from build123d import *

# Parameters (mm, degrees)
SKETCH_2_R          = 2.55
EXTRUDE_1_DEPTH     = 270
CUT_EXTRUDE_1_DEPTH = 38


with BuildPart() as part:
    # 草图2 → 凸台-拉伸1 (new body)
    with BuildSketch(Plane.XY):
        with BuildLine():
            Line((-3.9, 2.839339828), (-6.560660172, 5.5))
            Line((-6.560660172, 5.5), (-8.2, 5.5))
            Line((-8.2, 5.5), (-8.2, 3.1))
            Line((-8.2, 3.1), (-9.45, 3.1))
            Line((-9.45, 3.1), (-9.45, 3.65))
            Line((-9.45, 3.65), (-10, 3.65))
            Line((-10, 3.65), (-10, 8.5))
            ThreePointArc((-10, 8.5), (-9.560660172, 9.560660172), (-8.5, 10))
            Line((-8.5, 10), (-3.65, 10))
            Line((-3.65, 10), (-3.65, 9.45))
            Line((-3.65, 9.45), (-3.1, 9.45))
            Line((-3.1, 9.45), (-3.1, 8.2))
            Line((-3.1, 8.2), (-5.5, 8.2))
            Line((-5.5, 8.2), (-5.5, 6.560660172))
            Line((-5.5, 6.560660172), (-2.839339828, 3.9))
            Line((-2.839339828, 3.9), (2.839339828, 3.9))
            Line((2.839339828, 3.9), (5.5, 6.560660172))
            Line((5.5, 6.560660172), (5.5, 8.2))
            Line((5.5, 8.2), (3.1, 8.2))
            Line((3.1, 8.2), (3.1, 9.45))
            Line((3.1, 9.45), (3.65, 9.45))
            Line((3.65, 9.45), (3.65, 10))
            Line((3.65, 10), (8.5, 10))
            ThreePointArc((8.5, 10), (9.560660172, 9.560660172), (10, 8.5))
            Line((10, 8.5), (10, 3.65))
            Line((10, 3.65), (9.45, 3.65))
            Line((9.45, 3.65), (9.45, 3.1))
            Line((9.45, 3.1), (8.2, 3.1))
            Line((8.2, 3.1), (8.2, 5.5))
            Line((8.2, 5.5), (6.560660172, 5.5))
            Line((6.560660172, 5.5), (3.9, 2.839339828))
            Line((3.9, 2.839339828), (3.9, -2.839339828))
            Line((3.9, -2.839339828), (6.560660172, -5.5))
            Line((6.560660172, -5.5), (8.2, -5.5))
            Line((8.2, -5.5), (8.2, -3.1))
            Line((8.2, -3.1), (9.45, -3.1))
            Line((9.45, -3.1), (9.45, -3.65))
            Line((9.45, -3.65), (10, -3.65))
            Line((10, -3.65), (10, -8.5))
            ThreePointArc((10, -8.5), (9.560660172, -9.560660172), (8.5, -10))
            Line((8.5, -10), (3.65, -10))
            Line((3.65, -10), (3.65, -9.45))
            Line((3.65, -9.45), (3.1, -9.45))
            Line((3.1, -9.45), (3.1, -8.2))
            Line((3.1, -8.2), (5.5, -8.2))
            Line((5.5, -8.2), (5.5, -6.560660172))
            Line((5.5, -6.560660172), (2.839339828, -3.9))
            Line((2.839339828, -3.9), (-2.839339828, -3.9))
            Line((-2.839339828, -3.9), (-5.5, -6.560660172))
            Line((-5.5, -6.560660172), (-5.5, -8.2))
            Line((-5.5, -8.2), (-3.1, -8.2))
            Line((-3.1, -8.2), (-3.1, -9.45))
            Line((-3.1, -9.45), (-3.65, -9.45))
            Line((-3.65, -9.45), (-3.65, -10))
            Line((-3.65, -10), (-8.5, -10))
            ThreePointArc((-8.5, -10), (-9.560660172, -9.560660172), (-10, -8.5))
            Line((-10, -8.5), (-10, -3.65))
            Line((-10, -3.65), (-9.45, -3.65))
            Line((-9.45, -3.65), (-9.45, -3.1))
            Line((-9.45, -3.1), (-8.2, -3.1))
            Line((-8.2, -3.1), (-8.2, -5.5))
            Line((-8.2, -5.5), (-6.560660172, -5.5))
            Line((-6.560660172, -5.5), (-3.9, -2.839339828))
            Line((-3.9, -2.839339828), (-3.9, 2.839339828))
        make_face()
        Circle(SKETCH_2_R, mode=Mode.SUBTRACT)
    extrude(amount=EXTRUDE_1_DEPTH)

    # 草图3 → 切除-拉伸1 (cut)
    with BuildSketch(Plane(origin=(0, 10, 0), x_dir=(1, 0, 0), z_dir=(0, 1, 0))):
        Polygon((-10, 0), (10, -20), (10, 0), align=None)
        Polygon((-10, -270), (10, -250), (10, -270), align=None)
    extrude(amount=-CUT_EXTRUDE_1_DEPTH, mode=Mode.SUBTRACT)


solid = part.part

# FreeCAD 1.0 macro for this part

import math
import FreeCAD as App
import Part
import Sketcher
Q = App.Units.Quantity


def add_polygon(sketch, points):
    """Adds a closed chain of lines whose ends are joined by coincident constraints."""
    first, n = sketch.GeometryCount, len(points)
    for a, b in zip(points, points[1:] + points[:1]):
        sketch.addGeometry(Part.LineSegment(App.Vector(*a, 0), App.Vector(*b, 0)), False)
    for i in range(n):
        sketch.addConstraint(Sketcher.Constraint("Coincident", first + i, 2, first + (i + 1) % n, 1))

doc = App.newDocument("Part")
body = doc.addObject("PartDesign::Body", "Body")

sketch1 = body.newObject("Sketcher::SketchObject", "Sketch")
sketch1.AttachmentSupport = (doc.getObject("XY_Plane"), [""])
sketch1.MapMode = "FlatFace"
sketch1.addGeometry(Part.LineSegment(App.Vector(-6.6, 5.5, 0), App.Vector(-3.9, 2.8, 0)), False)
sketch1.addGeometry(Part.LineSegment(App.Vector(-3.9, 2.8, 0), App.Vector(-3.9, -2.8, 0)), False)
sketch1.addGeometry(Part.LineSegment(App.Vector(-3.9, -2.8, 0), App.Vector(-6.6, -5.5, 0)), False)
sketch1.addGeometry(Part.LineSegment(App.Vector(-6.6, -5.5, 0), App.Vector(-8.2, -5.5, 0)), False)
sketch1.addGeometry(Part.LineSegment(App.Vector(-8.2, -5.5, 0), App.Vector(-8.2, -3.1, 0)), False)
sketch1.addGeometry(Part.LineSegment(App.Vector(-8.2, -3.1, 0), App.Vector(-9.4, -3.1, 0)), False)
sketch1.addGeometry(Part.LineSegment(App.Vector(-9.4, -3.1, 0), App.Vector(-9.4, -3.6, 0)), False)
sketch1.addGeometry(Part.LineSegment(App.Vector(-9.4, -3.6, 0), App.Vector(-10, -3.6, 0)), False)
sketch1.addGeometry(Part.LineSegment(App.Vector(-10, -3.6, 0), App.Vector(-10, -8.5, 0)), False)
sketch1.addGeometry(Part.ArcOfCircle(Part.Circle(App.Vector(-8.5, -8.5, 0), App.Vector(0, 0, 1), 1.5), math.radians(180), math.radians(270)), False)
sketch1.addGeometry(Part.LineSegment(App.Vector(-8.5, -10, 0), App.Vector(-3.6, -10, 0)), False)
sketch1.addGeometry(Part.LineSegment(App.Vector(-3.6, -10, 0), App.Vector(-3.6, -9.4, 0)), False)
sketch1.addGeometry(Part.LineSegment(App.Vector(-3.6, -9.4, 0), App.Vector(-3.1, -9.4, 0)), False)
sketch1.addGeometry(Part.LineSegment(App.Vector(-3.1, -9.4, 0), App.Vector(-3.1, -8.2, 0)), False)
sketch1.addGeometry(Part.LineSegment(App.Vector(-3.1, -8.2, 0), App.Vector(-5.5, -8.2, 0)), False)
sketch1.addGeometry(Part.LineSegment(App.Vector(-5.5, -8.2, 0), App.Vector(-5.5, -6.6, 0)), False)
sketch1.addGeometry(Part.LineSegment(App.Vector(-5.5, -6.6, 0), App.Vector(-2.8, -3.9, 0)), False)
sketch1.addGeometry(Part.LineSegment(App.Vector(-2.8, -3.9, 0), App.Vector(2.8, -3.9, 0)), False)
sketch1.addGeometry(Part.LineSegment(App.Vector(2.8, -3.9, 0), App.Vector(5.5, -6.6, 0)), False)
sketch1.addGeometry(Part.LineSegment(App.Vector(5.5, -6.6, 0), App.Vector(5.5, -8.2, 0)), False)
sketch1.addGeometry(Part.LineSegment(App.Vector(5.5, -8.2, 0), App.Vector(3.1, -8.2, 0)), False)
sketch1.addGeometry(Part.LineSegment(App.Vector(3.1, -8.2, 0), App.Vector(3.1, -9.4, 0)), False)
sketch1.addGeometry(Part.LineSegment(App.Vector(3.1, -9.4, 0), App.Vector(3.6, -9.4, 0)), False)
sketch1.addGeometry(Part.LineSegment(App.Vector(3.6, -9.4, 0), App.Vector(3.6, -10, 0)), False)
sketch1.addGeometry(Part.LineSegment(App.Vector(3.6, -10, 0), App.Vector(8.5, -10, 0)), False)
sketch1.addGeometry(Part.ArcOfCircle(Part.Circle(App.Vector(8.5, -8.5, 0), App.Vector(0, 0, 1), 1.5), math.radians(-90), math.radians(0)), False)
sketch1.addGeometry(Part.LineSegment(App.Vector(10, -8.5, 0), App.Vector(10, -3.6, 0)), False)
sketch1.addGeometry(Part.LineSegment(App.Vector(10, -3.6, 0), App.Vector(9.4, -3.6, 0)), False)
sketch1.addGeometry(Part.LineSegment(App.Vector(9.4, -3.6, 0), App.Vector(9.4, -3.1, 0)), False)
sketch1.addGeometry(Part.LineSegment(App.Vector(9.4, -3.1, 0), App.Vector(8.2, -3.1, 0)), False)
sketch1.addGeometry(Part.LineSegment(App.Vector(8.2, -3.1, 0), App.Vector(8.2, -5.5, 0)), False)
sketch1.addGeometry(Part.LineSegment(App.Vector(8.2, -5.5, 0), App.Vector(6.6, -5.5, 0)), False)
sketch1.addGeometry(Part.LineSegment(App.Vector(6.6, -5.5, 0), App.Vector(3.9, -2.8, 0)), False)
sketch1.addGeometry(Part.LineSegment(App.Vector(3.9, -2.8, 0), App.Vector(3.9, 2.8, 0)), False)
sketch1.addGeometry(Part.LineSegment(App.Vector(3.9, 2.8, 0), App.Vector(6.6, 5.5, 0)), False)
sketch1.addGeometry(Part.LineSegment(App.Vector(6.6, 5.5, 0), App.Vector(8.2, 5.5, 0)), False)
sketch1.addGeometry(Part.LineSegment(App.Vector(8.2, 5.5, 0), App.Vector(8.2, 3.1, 0)), False)
sketch1.addGeometry(Part.LineSegment(App.Vector(8.2, 3.1, 0), App.Vector(9.4, 3.1, 0)), False)
sketch1.addGeometry(Part.LineSegment(App.Vector(9.4, 3.1, 0), App.Vector(9.4, 3.6, 0)), False)
sketch1.addGeometry(Part.LineSegment(App.Vector(9.4, 3.6, 0), App.Vector(10, 3.6, 0)), False)
sketch1.addGeometry(Part.LineSegment(App.Vector(10, 3.6, 0), App.Vector(10, 8.5, 0)), False)
sketch1.addGeometry(Part.ArcOfCircle(Part.Circle(App.Vector(8.5, 8.5, 0), App.Vector(0, 0, 1), 1.5), math.radians(0), math.radians(90)), False)
sketch1.addGeometry(Part.LineSegment(App.Vector(8.5, 10, 0), App.Vector(3.6, 10, 0)), False)
sketch1.addGeometry(Part.LineSegment(App.Vector(3.6, 10, 0), App.Vector(3.6, 9.4, 0)), False)
sketch1.addGeometry(Part.LineSegment(App.Vector(3.6, 9.4, 0), App.Vector(3.1, 9.4, 0)), False)
sketch1.addGeometry(Part.LineSegment(App.Vector(3.1, 9.4, 0), App.Vector(3.1, 8.2, 0)), False)
sketch1.addGeometry(Part.LineSegment(App.Vector(3.1, 8.2, 0), App.Vector(5.5, 8.2, 0)), False)
sketch1.addGeometry(Part.LineSegment(App.Vector(5.5, 8.2, 0), App.Vector(5.5, 6.6, 0)), False)
sketch1.addGeometry(Part.LineSegment(App.Vector(5.5, 6.6, 0), App.Vector(2.8, 3.9, 0)), False)
sketch1.addGeometry(Part.LineSegment(App.Vector(2.8, 3.9, 0), App.Vector(-2.8, 3.9, 0)), False)
sketch1.addGeometry(Part.LineSegment(App.Vector(-2.8, 3.9, 0), App.Vector(-5.5, 6.6, 0)), False)
sketch1.addGeometry(Part.LineSegment(App.Vector(-5.5, 6.6, 0), App.Vector(-5.5, 8.2, 0)), False)
sketch1.addGeometry(Part.LineSegment(App.Vector(-5.5, 8.2, 0), App.Vector(-3.1, 8.2, 0)), False)
sketch1.addGeometry(Part.LineSegment(App.Vector(-3.1, 8.2, 0), App.Vector(-3.1, 9.4, 0)), False)
sketch1.addGeometry(Part.LineSegment(App.Vector(-3.1, 9.4, 0), App.Vector(-3.6, 9.4, 0)), False)
sketch1.addGeometry(Part.LineSegment(App.Vector(-3.6, 9.4, 0), App.Vector(-3.6, 10, 0)), False)
sketch1.addGeometry(Part.LineSegment(App.Vector(-3.6, 10, 0), App.Vector(-8.5, 10, 0)), False)
sketch1.addGeometry(Part.ArcOfCircle(Part.Circle(App.Vector(-8.5, 8.5, 0), App.Vector(0, 0, 1), 1.5), math.radians(90), math.radians(180)), False)
sketch1.addGeometry(Part.LineSegment(App.Vector(-10, 8.5, 0), App.Vector(-10, 3.6, 0)), False)
sketch1.addGeometry(Part.LineSegment(App.Vector(-10, 3.6, 0), App.Vector(-9.4, 3.6, 0)), False)
sketch1.addGeometry(Part.LineSegment(App.Vector(-9.4, 3.6, 0), App.Vector(-9.4, 3.1, 0)), False)
sketch1.addGeometry(Part.LineSegment(App.Vector(-9.4, 3.1, 0), App.Vector(-8.2, 3.1, 0)), False)
sketch1.addGeometry(Part.LineSegment(App.Vector(-8.2, 3.1, 0), App.Vector(-8.2, 5.5, 0)), False)
sketch1.addGeometry(Part.LineSegment(App.Vector(-8.2, 5.5, 0), App.Vector(-6.6, 5.5, 0)), False)
sketch1.addGeometry(Part.Circle(App.Vector(0, 0, 0), App.Vector(0, 0, 1), 2.5), False)
sketch1.addConstraint(Sketcher.Constraint("Coincident", 0, 2, 1, 1))
sketch1.addConstraint(Sketcher.Constraint("Coincident", 1, 2, 2, 1))
sketch1.addConstraint(Sketcher.Constraint("Coincident", 2, 2, 3, 1))
sketch1.addConstraint(Sketcher.Constraint("Coincident", 3, 2, 4, 1))
sketch1.addConstraint(Sketcher.Constraint("Coincident", 4, 2, 5, 1))
sketch1.addConstraint(Sketcher.Constraint("Coincident", 5, 2, 6, 1))
sketch1.addConstraint(Sketcher.Constraint("Coincident", 6, 2, 7, 1))
sketch1.addConstraint(Sketcher.Constraint("Coincident", 7, 2, 8, 1))
sketch1.addConstraint(Sketcher.Constraint("Tangent", 8, 2, 9, 1))
sketch1.addConstraint(Sketcher.Constraint("Tangent", 9, 2, 10, 1))
sketch1.addConstraint(Sketcher.Constraint("Coincident", 10, 2, 11, 1))
sketch1.addConstraint(Sketcher.Constraint("Coincident", 11, 2, 12, 1))
sketch1.addConstraint(Sketcher.Constraint("Coincident", 12, 2, 13, 1))
sketch1.addConstraint(Sketcher.Constraint("Coincident", 13, 2, 14, 1))
sketch1.addConstraint(Sketcher.Constraint("Coincident", 14, 2, 15, 1))
sketch1.addConstraint(Sketcher.Constraint("Coincident", 15, 2, 16, 1))
sketch1.addConstraint(Sketcher.Constraint("Coincident", 16, 2, 17, 1))
sketch1.addConstraint(Sketcher.Constraint("Coincident", 17, 2, 18, 1))
sketch1.addConstraint(Sketcher.Constraint("Coincident", 18, 2, 19, 1))
sketch1.addConstraint(Sketcher.Constraint("Coincident", 19, 2, 20, 1))
sketch1.addConstraint(Sketcher.Constraint("Coincident", 20, 2, 21, 1))
sketch1.addConstraint(Sketcher.Constraint("Coincident", 21, 2, 22, 1))
sketch1.addConstraint(Sketcher.Constraint("Coincident", 22, 2, 23, 1))
sketch1.addConstraint(Sketcher.Constraint("Coincident", 23, 2, 24, 1))
sketch1.addConstraint(Sketcher.Constraint("Tangent", 24, 2, 25, 1))
sketch1.addConstraint(Sketcher.Constraint("Tangent", 25, 2, 26, 1))
sketch1.addConstraint(Sketcher.Constraint("Coincident", 26, 2, 27, 1))
sketch1.addConstraint(Sketcher.Constraint("Coincident", 27, 2, 28, 1))
sketch1.addConstraint(Sketcher.Constraint("Coincident", 28, 2, 29, 1))
sketch1.addConstraint(Sketcher.Constraint("Coincident", 29, 2, 30, 1))
sketch1.addConstraint(Sketcher.Constraint("Coincident", 30, 2, 31, 1))
sketch1.addConstraint(Sketcher.Constraint("Coincident", 31, 2, 32, 1))
sketch1.addConstraint(Sketcher.Constraint("Coincident", 32, 2, 33, 1))
sketch1.addConstraint(Sketcher.Constraint("Coincident", 33, 2, 34, 1))
sketch1.addConstraint(Sketcher.Constraint("Coincident", 34, 2, 35, 1))
sketch1.addConstraint(Sketcher.Constraint("Coincident", 35, 2, 36, 1))
sketch1.addConstraint(Sketcher.Constraint("Coincident", 36, 2, 37, 1))
sketch1.addConstraint(Sketcher.Constraint("Coincident", 37, 2, 38, 1))
sketch1.addConstraint(Sketcher.Constraint("Coincident", 38, 2, 39, 1))
sketch1.addConstraint(Sketcher.Constraint("Coincident", 39, 2, 40, 1))
sketch1.addConstraint(Sketcher.Constraint("Tangent", 40, 2, 41, 1))
sketch1.addConstraint(Sketcher.Constraint("Tangent", 41, 2, 42, 1))
sketch1.addConstraint(Sketcher.Constraint("Coincident", 42, 2, 43, 1))
sketch1.addConstraint(Sketcher.Constraint("Coincident", 43, 2, 44, 1))
sketch1.addConstraint(Sketcher.Constraint("Coincident", 44, 2, 45, 1))
sketch1.addConstraint(Sketcher.Constraint("Coincident", 45, 2, 46, 1))
sketch1.addConstraint(Sketcher.Constraint("Coincident", 46, 2, 47, 1))
sketch1.addConstraint(Sketcher.Constraint("Coincident", 47, 2, 48, 1))
sketch1.addConstraint(Sketcher.Constraint("Coincident", 48, 2, 49, 1))
sketch1.addConstraint(Sketcher.Constraint("Coincident", 49, 2, 50, 1))
sketch1.addConstraint(Sketcher.Constraint("Coincident", 50, 2, 51, 1))
sketch1.addConstraint(Sketcher.Constraint("Coincident", 51, 2, 52, 1))
sketch1.addConstraint(Sketcher.Constraint("Coincident", 52, 2, 53, 1))
sketch1.addConstraint(Sketcher.Constraint("Coincident", 53, 2, 54, 1))
sketch1.addConstraint(Sketcher.Constraint("Coincident", 54, 2, 55, 1))
sketch1.addConstraint(Sketcher.Constraint("Coincident", 55, 2, 56, 1))
sketch1.addConstraint(Sketcher.Constraint("Tangent", 56, 2, 57, 1))
sketch1.addConstraint(Sketcher.Constraint("Tangent", 57, 2, 58, 1))
sketch1.addConstraint(Sketcher.Constraint("Coincident", 58, 2, 59, 1))
sketch1.addConstraint(Sketcher.Constraint("Coincident", 59, 2, 60, 1))
sketch1.addConstraint(Sketcher.Constraint("Coincident", 60, 2, 61, 1))
sketch1.addConstraint(Sketcher.Constraint("Coincident", 61, 2, 62, 1))
sketch1.addConstraint(Sketcher.Constraint("Coincident", 62, 2, 63, 1))
sketch1.addConstraint(Sketcher.Constraint("Coincident", 63, 2, 0, 1))
sketch1.addConstraint(Sketcher.Constraint("Vertical", 1))
sketch1.addConstraint(Sketcher.Constraint("Horizontal", 3))
sketch1.addConstraint(Sketcher.Constraint("Vertical", 4))
sketch1.addConstraint(Sketcher.Constraint("Horizontal", 5))
sketch1.addConstraint(Sketcher.Constraint("Vertical", 6))
sketch1.addConstraint(Sketcher.Constraint("Horizontal", 7))
sketch1.addConstraint(Sketcher.Constraint("Vertical", 8))
sketch1.addConstraint(Sketcher.Constraint("Horizontal", 10))
sketch1.addConstraint(Sketcher.Constraint("Vertical", 11))
sketch1.addConstraint(Sketcher.Constraint("Horizontal", 12))
sketch1.addConstraint(Sketcher.Constraint("Vertical", 13))
sketch1.addConstraint(Sketcher.Constraint("Horizontal", 14))
sketch1.addConstraint(Sketcher.Constraint("Vertical", 15))
sketch1.addConstraint(Sketcher.Constraint("Horizontal", 17))
sketch1.addConstraint(Sketcher.Constraint("Vertical", 19))
sketch1.addConstraint(Sketcher.Constraint("Horizontal", 20))
sketch1.addConstraint(Sketcher.Constraint("Vertical", 21))
sketch1.addConstraint(Sketcher.Constraint("Horizontal", 22))
sketch1.addConstraint(Sketcher.Constraint("Vertical", 23))
sketch1.addConstraint(Sketcher.Constraint("Horizontal", 24))
sketch1.addConstraint(Sketcher.Constraint("Vertical", 26))
sketch1.addConstraint(Sketcher.Constraint("Horizontal", 27))
sketch1.addConstraint(Sketcher.Constraint("Vertical", 28))
sketch1.addConstraint(Sketcher.Constraint("Horizontal", 29))
sketch1.addConstraint(Sketcher.Constraint("Vertical", 30))
sketch1.addConstraint(Sketcher.Constraint("Horizontal", 31))
sketch1.addConstraint(Sketcher.Constraint("Vertical", 33))
sketch1.addConstraint(Sketcher.Constraint("Horizontal", 35))
sketch1.addConstraint(Sketcher.Constraint("Vertical", 36))
sketch1.addConstraint(Sketcher.Constraint("Horizontal", 37))
sketch1.addConstraint(Sketcher.Constraint("Vertical", 38))
sketch1.addConstraint(Sketcher.Constraint("Horizontal", 39))
sketch1.addConstraint(Sketcher.Constraint("Vertical", 40))
sketch1.addConstraint(Sketcher.Constraint("Horizontal", 42))
sketch1.addConstraint(Sketcher.Constraint("Vertical", 43))
sketch1.addConstraint(Sketcher.Constraint("Horizontal", 44))
sketch1.addConstraint(Sketcher.Constraint("Vertical", 45))
sketch1.addConstraint(Sketcher.Constraint("Horizontal", 46))
sketch1.addConstraint(Sketcher.Constraint("Vertical", 47))
sketch1.addConstraint(Sketcher.Constraint("Horizontal", 49))
sketch1.addConstraint(Sketcher.Constraint("Vertical", 51))
sketch1.addConstraint(Sketcher.Constraint("Horizontal", 52))
sketch1.addConstraint(Sketcher.Constraint("Vertical", 53))
sketch1.addConstraint(Sketcher.Constraint("Horizontal", 54))
sketch1.addConstraint(Sketcher.Constraint("Vertical", 55))
sketch1.addConstraint(Sketcher.Constraint("Horizontal", 56))
sketch1.addConstraint(Sketcher.Constraint("Vertical", 58))
sketch1.addConstraint(Sketcher.Constraint("Horizontal", 59))
sketch1.addConstraint(Sketcher.Constraint("Vertical", 60))
sketch1.addConstraint(Sketcher.Constraint("Horizontal", 61))
sketch1.addConstraint(Sketcher.Constraint("Vertical", 62))
sketch1.addConstraint(Sketcher.Constraint("Horizontal", 63))
sketch1.addConstraint(Sketcher.Constraint("Coincident", 64, 3, -1, 1))
sketch1.addConstraint(Sketcher.Constraint("Equal", 9, 25))
sketch1.addConstraint(Sketcher.Constraint("Equal", 25, 41))
sketch1.addConstraint(Sketcher.Constraint("Equal", 41, 57))
sketch1.addConstraint(Sketcher.Constraint("Symmetric", 9, 3, 41, 3, -1, 1))
sketch1.addConstraint(Sketcher.Constraint("Symmetric", 25, 3, 57, 3, -1, 1))
sketch1.addConstraint(Sketcher.Constraint("Symmetric", 0, 2, 32, 2, -1, 1))
sketch1.addConstraint(Sketcher.Constraint("Symmetric", 2, 2, 34, 2, -1, 1))
sketch1.addConstraint(Sketcher.Constraint("Symmetric", 4, 2, 36, 2, -1, 1))
sketch1.addConstraint(Sketcher.Constraint("Symmetric", 6, 2, 38, 2, -1, 1))
sketch1.addConstraint(Sketcher.Constraint("Symmetric", 11, 2, 43, 2, -1, 1))
sketch1.addConstraint(Sketcher.Constraint("Symmetric", 13, 2, 45, 2, -1, 1))
sketch1.addConstraint(Sketcher.Constraint("Symmetric", 15, 2, 47, 2, -1, 1))
sketch1.addConstraint(Sketcher.Constraint("Symmetric", 16, 2, 48, 2, -1, 1))
sketch1.addConstraint(Sketcher.Constraint("Symmetric", 18, 2, 50, 2, -1, 1))
sketch1.addConstraint(Sketcher.Constraint("Symmetric", 20, 2, 52, 2, -1, 1))
sketch1.addConstraint(Sketcher.Constraint("Symmetric", 22, 2, 54, 2, -1, 1))
sketch1.addConstraint(Sketcher.Constraint("Symmetric", 27, 2, 59, 2, -1, 1))
sketch1.addConstraint(Sketcher.Constraint("Symmetric", 29, 2, 61, 2, -1, 1))
sketch1.addConstraint(Sketcher.Constraint("Symmetric", 31, 2, 63, 2, -1, 1))
sketch1.addConstraint(Sketcher.Constraint("Symmetric", 9, 3, 25, 3, -2))
sketch1.addConstraint(Sketcher.Constraint("Symmetric", 15, 2, 18, 2, -2))
sketch1.addConstraint(Sketcher.Constraint("Symmetric", 13, 2, 20, 2, -2))
sketch1.addConstraint(Sketcher.Constraint("Symmetric", 11, 2, 22, 2, -2))
sketch1.addConstraint(Sketcher.Constraint("Symmetric", 6, 2, 27, 2, -2))
sketch1.addConstraint(Sketcher.Constraint("Symmetric", 4, 2, 29, 2, -2))
sketch1.addConstraint(Sketcher.Constraint("Symmetric", 2, 2, 31, 2, -2))
sketch1.addConstraint(Sketcher.Constraint("Perpendicular", 0, 2))
sketch1.addConstraint(Sketcher.Constraint("Parallel", 2, 16))
sketch1.addConstraint(Sketcher.Constraint("Perpendicular", 16, 18))
sketch1.addConstraint(Sketcher.Constraint("Perpendicular", 32, 34))
sketch1.addConstraint(Sketcher.Constraint("Perpendicular", 48, 50))
sketch1.addConstraint(Sketcher.Constraint("Horizontal", 1, 2, 32, 2))
sketch1.addConstraint(Sketcher.Constraint("Equal", 7, 12))
sketch1.addConstraint(Sketcher.Constraint("Equal", 49, 1))
sketch1.addConstraint(Sketcher.Constraint("Equal", 52, 4))
sketch1.addConstraint(Sketcher.Constraint("Equal", 59, 6))
sketch1.addConstraint(Sketcher.Constraint("Equal", 56, 8))
sketch1.addConstraint(Sketcher.Constraint("Equal", 6, 11))
sketch1.addConstraint(Sketcher.Constraint("Equal", 61, 13))
sketch1.addConstraint(Sketcher.Constraint("Equal", 63, 15))
sketch1.addConstraint(Sketcher.Constraint("Equal", 2, 16))
sketch1.addConstraint(Sketcher.Constraint("Diameter", 64, Q("5.1 mm")))
sketch1.addConstraint(Sketcher.Constraint("Radius", 9, Q("1.5 mm")))
sketch1.addConstraint(Sketcher.Constraint("DistanceX", 14, 2, 14, 1, Q("2.4 mm")))
sketch1.addConstraint(Sketcher.Constraint("DistanceX", 7, 2, -1, 1, Q("10 mm")))
sketch1.addConstraint(Sketcher.Constraint("DistanceX", 5, 2, 5, 1, Q("1.25 mm")))
sketch1.addConstraint(Sketcher.Constraint("DistanceX", 7, 2, 7, 1, Q("0.55 mm")))
sketch1.addConstraint(Sketcher.Constraint("DistanceX", 10, 1, 10, 2, Q("4.85 mm")))
sketch1.addConstraint(Sketcher.Constraint("DistanceX", 0, 2, -1, 1, Q("3.9 mm")))
sketch1.addConstraint(Sketcher.Constraint("DistanceX", 3, 2, 3, 1, Q("1.63934 mm")))
pad1 = body.newObject("PartDesign::Pad", "Pad")
pad1.Profile = sketch1
pad1.Length = 270

sketch2 = body.newObject("Sketcher::SketchObject", "Sketch001")
sketch2.AttachmentSupport = (doc.getObject("XZ_Plane"), [""])
sketch2.MapMode = "FlatFace"
sketch2.AttachmentOffset = App.Placement(App.Vector(0, 0, -10), App.Rotation())
add_polygon(sketch2, [(-10, 0), (10, 20), (10, 0)])
add_polygon(sketch2, [(10, 250), (-10, 270), (10, 270)])
sketch2.addConstraint(Sketcher.Constraint("Vertical", 1))
sketch2.addConstraint(Sketcher.Constraint("Horizontal", 2))
sketch2.addConstraint(Sketcher.Constraint("Horizontal", 4))
sketch2.addConstraint(Sketcher.Constraint("Vertical", 5))
sketch2.addConstraint(Sketcher.Constraint("Symmetric", 1, 2, 2, 2, -1, 1))
sketch2.addConstraint(Sketcher.Constraint("Perpendicular", 0, 3))
sketch2.addConstraint(Sketcher.Constraint("Vertical", 2, 2, 3, 2))
sketch2.addConstraint(Sketcher.Constraint("Vertical", 1, 2, 4, 2))
sketch2.addConstraint(Sketcher.Constraint("Equal", 4, 1))
sketch2.addConstraint(Sketcher.Constraint("DistanceX", 2, 2, 2, 1, Q("20 mm")))
sketch2.addConstraint(Sketcher.Constraint("DistanceY", -1, 1, 3, 2, Q("270 mm")))
pocket1 = body.newObject("PartDesign::Pocket", "Pocket")
pocket1.Profile = sketch2
pocket1.Length = 38
pocket1.Reversed = True

doc.recompute()
